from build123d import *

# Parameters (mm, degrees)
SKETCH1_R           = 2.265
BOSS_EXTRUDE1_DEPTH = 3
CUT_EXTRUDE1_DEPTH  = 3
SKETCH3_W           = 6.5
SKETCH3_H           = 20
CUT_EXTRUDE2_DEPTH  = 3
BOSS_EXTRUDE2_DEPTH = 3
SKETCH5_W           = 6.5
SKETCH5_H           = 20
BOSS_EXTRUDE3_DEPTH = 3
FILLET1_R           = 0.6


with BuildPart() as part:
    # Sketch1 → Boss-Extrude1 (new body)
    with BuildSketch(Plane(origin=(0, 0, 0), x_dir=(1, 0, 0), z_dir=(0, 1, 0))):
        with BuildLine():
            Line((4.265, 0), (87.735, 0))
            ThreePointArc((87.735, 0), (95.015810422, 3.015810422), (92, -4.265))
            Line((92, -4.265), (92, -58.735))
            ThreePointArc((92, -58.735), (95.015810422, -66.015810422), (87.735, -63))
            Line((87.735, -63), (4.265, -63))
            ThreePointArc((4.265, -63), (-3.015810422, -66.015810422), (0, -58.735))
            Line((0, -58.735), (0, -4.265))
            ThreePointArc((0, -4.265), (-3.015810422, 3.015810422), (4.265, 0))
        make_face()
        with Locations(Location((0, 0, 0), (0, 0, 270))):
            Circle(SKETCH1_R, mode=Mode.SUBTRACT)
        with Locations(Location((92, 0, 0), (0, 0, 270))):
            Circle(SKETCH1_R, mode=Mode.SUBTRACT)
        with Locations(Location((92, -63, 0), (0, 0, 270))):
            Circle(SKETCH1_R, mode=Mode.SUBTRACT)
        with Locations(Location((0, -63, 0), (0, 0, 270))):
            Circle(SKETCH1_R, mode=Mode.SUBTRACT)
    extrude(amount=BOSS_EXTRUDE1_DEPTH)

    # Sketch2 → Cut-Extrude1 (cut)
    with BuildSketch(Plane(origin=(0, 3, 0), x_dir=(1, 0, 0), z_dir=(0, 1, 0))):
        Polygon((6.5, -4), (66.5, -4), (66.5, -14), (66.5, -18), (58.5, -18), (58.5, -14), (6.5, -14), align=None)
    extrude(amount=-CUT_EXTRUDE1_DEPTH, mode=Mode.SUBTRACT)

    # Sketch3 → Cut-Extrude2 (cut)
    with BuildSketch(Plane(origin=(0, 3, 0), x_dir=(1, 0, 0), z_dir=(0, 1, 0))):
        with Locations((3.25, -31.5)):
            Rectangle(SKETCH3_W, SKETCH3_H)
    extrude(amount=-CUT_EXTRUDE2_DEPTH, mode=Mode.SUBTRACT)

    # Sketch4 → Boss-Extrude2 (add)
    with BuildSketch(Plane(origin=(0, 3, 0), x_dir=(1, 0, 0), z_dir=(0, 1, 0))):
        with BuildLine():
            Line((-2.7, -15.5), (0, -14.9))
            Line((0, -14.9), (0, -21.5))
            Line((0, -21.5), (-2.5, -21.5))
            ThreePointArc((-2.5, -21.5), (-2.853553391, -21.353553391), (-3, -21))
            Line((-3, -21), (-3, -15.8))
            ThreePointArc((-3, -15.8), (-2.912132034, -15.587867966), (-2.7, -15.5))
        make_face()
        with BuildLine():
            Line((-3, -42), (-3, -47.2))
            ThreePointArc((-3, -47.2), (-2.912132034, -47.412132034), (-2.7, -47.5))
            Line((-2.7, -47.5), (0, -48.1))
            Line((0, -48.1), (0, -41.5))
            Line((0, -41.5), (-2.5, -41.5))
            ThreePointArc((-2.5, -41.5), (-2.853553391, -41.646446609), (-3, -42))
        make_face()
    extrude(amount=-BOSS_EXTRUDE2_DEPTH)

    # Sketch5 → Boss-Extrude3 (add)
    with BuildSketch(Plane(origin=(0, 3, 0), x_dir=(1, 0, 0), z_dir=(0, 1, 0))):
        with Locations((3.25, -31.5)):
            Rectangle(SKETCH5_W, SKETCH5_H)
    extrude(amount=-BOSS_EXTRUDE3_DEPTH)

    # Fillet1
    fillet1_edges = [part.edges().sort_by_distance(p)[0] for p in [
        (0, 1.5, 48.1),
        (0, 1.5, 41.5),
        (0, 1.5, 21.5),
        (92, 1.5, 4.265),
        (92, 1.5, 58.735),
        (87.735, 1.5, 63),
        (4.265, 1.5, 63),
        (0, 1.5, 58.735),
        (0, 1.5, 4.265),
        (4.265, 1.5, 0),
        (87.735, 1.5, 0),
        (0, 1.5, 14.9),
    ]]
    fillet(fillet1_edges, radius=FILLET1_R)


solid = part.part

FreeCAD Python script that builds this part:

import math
import FreeCAD as App
import Part
import Sketcher

V = App.Vector
Q = App.Units.Quantity


def edges_at(feature, points):
    """Names of the edges that pass closest to the given points."""
    edges = feature.Shape.Edges
    near = lambda p: min(range(len(edges)), key=lambda i: edges[i].distToShape(Part.Vertex(*p))[0])
    return sorted({f"Edge{near(p) + 1}" for p in points})

doc = App.newDocument("Part")
body = doc.addObject("PartDesign::Body", "Body")

sketch1 = body.newObject("Sketcher::SketchObject", "Sketch")
sketch1.AttachmentSupport = (doc.getObject("XZ_Plane"), [""])
sketch1.MapMode = "FlatFace"
sketch1.addGeometry([
    Part.LineSegment(V(87.7, 0, 0), V(4.3, 0, 0)),
    Part.ArcOfCircle(Part.Circle(V(0, 0, 0), V(0, 0, 1), 4.3), math.radians(90), math.radians(360)),
    Part.LineSegment(V(0, 4.3, 0), V(0, 58.7, 0)),
    Part.ArcOfCircle(Part.Circle(V(0, 63, 0), V(0, 0, 1), 4.3), math.radians(0), math.radians(270)),
    Part.LineSegment(V(4.3, 63, 0), V(87.7, 63, 0)),
    Part.ArcOfCircle(Part.Circle(V(92, 63, 0), V(0, 0, 1), 4.3), math.radians(-90), math.radians(180)),
    Part.LineSegment(V(92, 58.7, 0), V(92, 4.3, 0)),
    Part.ArcOfCircle(Part.Circle(V(92, 0, 0), V(0, 0, 1), 4.3), math.radians(180), math.radians(450)),
    Part.Circle(V(92, 63, 0), V(0, 0, 1), 2.3),
    Part.Circle(V(0, 63, 0), V(0, 0, 1), 2.3),
    Part.Circle(V(92, 0, 0), V(0, 0, 1), 2.3),
    Part.Circle(V(0, 0, 0), V(0, 0, 1), 2.3),
], False)
sketch1.addConstraint([
    Sketcher.Constraint("Coincident", 0, 2, 1, 2),
    Sketcher.Constraint("Coincident", 1, 1, 2, 1),
    Sketcher.Constraint("Coincident", 2, 2, 3, 2),
    Sketcher.Constraint("Coincident", 3, 1, 4, 1),
    Sketcher.Constraint("Coincident", 4, 2, 5, 2),
    Sketcher.Constraint("Coincident", 5, 1, 6, 1),
    Sketcher.Constraint("Coincident", 6, 2, 7, 2),
    Sketcher.Constraint("Coincident", 7, 1, 0, 1),
    Sketcher.Constraint("Horizontal", 0),
    Sketcher.Constraint("Vertical", 2),
    Sketcher.Constraint("Horizontal", 4),
    Sketcher.Constraint("Vertical", 6),
    Sketcher.Constraint("Coincident", 1, 3, -1, 1),
    Sketcher.Constraint("Coincident", 11, 3, -1, 1),
    Sketcher.Constraint("Coincident", 8, 3, 5, 3),
    Sketcher.Constraint("Coincident", 9, 3, 3, 3),
    Sketcher.Constraint("Coincident", 10, 3, 7, 3),
    Sketcher.Constraint("Equal", 1, 3),
    Sketcher.Constraint("Equal", 3, 5),
    Sketcher.Constraint("Equal", 5, 7),
    Sketcher.Constraint("Equal", 8, 9),
    Sketcher.Constraint("Equal", 9, 10),
    Sketcher.Constraint("Equal", 10, 11),
    Sketcher.Constraint("PointOnObject", 3, 3, -2),
    Sketcher.Constraint("PointOnObject", 7, 3, -1),
    Sketcher.Constraint("PointOnObject", 0, 2, -1),
    Sketcher.Constraint("PointOnObject", 1, 1, -2),
    Sketcher.Constraint("Horizontal", 3, 3, 5, 3),
    Sketcher.Constraint("Horizontal", 9, 3, 3, 1),
    Sketcher.Constraint("Vertical", 5, 3, 7, 3),
    Sketcher.Constraint("Vertical", 10, 3, 5, 1),
    Sketcher.Constraint("Diameter", 8, Q("4.53 mm")),
    Sketcher.Constraint("DistanceY", -1, 1, 3, 3, Q("63 mm")),
    Sketcher.Constraint("DistanceX", -1, 1, 5, 3, Q("92 mm")),
    Sketcher.Constraint("Radius", 1, Q("4.265 mm")),
])
pad1 = body.newObject("PartDesign::Pad", "Pad")
pad1.Profile = sketch1
pad1.Length = 3
pad1.Reversed = True

sketch2 = body.newObject("Sketcher::SketchObject", "Sketch001")
sketch2.AttachmentSupport = (doc.getObject("XZ_Plane"), [""])
sketch2.MapMode = "FlatFace"
sketch2.AttachmentOffset = App.Placement(V(0, 0, -3), App.Rotation())
sketch2.addGeometry([
    Part.LineSegment(V(66.5, 4, 0), V(6.5, 4, 0)),
    Part.LineSegment(V(6.5, 4, 0), V(6.5, 14, 0)),
    Part.LineSegment(V(6.5, 14, 0), V(58.5, 14, 0)),
    Part.LineSegment(V(58.5, 14, 0), V(58.5, 18, 0)),
    Part.LineSegment(V(58.5, 18, 0), V(66.5, 18, 0)),
    Part.LineSegment(V(66.5, 18, 0), V(66.5, 4, 0)),
], False)
sketch2.addConstraint([
    Sketcher.Constraint("Coincident", 0, 2, 1, 1),
    Sketcher.Constraint("Coincident", 1, 2, 2, 1),
    Sketcher.Constraint("Coincident", 2, 2, 3, 1),
    Sketcher.Constraint("Coincident", 3, 2, 4, 1),
    Sketcher.Constraint("Coincident", 4, 2, 5, 1),
    Sketcher.Constraint("Coincident", 5, 2, 0, 1),
    Sketcher.Constraint("Horizontal", 0),
    Sketcher.Constraint("Vertical", 1),
    Sketcher.Constraint("Horizontal", 2),
    Sketcher.Constraint("Vertical", 3),
    Sketcher.Constraint("Horizontal", 4),
    Sketcher.Constraint("Vertical", 5),
    Sketcher.Constraint("DistanceX", 0, 2, 0, 1, Q("60 mm")),
    Sketcher.Constraint("DistanceX", 2, 1, 2, 2, Q("52 mm")),
    Sketcher.Constraint("DistanceY", 1, 1, 1, 2, Q("10 mm")),
    Sketcher.Constraint("DistanceY", 3, 1, 3, 2, Q("4 mm")),
    Sketcher.Constraint("DistanceY", -1, 1, 0, 2, Q("4 mm")),
    Sketcher.Constraint("DistanceX", -1, 1, 0, 2, Q("6.5 mm")),
])
pocket1 = body.newObject("PartDesign::Pocket", "Pocket")
pocket1.Profile = sketch2
pocket1.Length = 3
pocket1.Reversed = True

sketch3 = body.newObject("Sketcher::SketchObject", "Sketch002")
sketch3.AttachmentSupport = (doc.getObject("XZ_Plane"), [""])
sketch3.MapMode = "FlatFace"
sketch3.AttachmentOffset = App.Placement(V(0, 0, -3), App.Rotation())
sketch3.addGeometry([
    Part.LineSegment(V(0, 22, 0), V(0, 42, 0)),
    Part.LineSegment(V(0, 42, 0), V(6, 42, 0)),
    Part.LineSegment(V(6, 42, 0), V(6, 22, 0)),
    Part.LineSegment(V(6, 22, 0), V(0, 22, 0)),
], False)
sketch3.addConstraint([
    Sketcher.Constraint("Coincident", 0, 2, 1, 1),
    Sketcher.Constraint("Coincident", 1, 2, 2, 1),
    Sketcher.Constraint("Coincident", 2, 2, 3, 1),
    Sketcher.Constraint("Coincident", 3, 2, 0, 1),
    Sketcher.Constraint("Vertical", 0),
    Sketcher.Constraint("Horizontal", 1),
    Sketcher.Constraint("Vertical", 2),
    Sketcher.Constraint("Horizontal", 3),
    Sketcher.Constraint("PointOnObject", 0, 2, -2),
    Sketcher.Constraint("DistanceY", 0, 1, 0, 2, Q("20 mm")),
    Sketcher.Constraint("DistanceX", 1, 1, 1, 2, Q("6.5 mm")),
    Sketcher.Constraint("DistanceY", -1, 1, 0, 2, Q("41.5 mm")),
])
pocket2 = body.newObject("PartDesign::Pocket", "Pocket001")
pocket2.Profile = sketch3
pocket2.Length = 3
pocket2.Reversed = True

sketch4 = body.newObject("Sketcher::SketchObject", "Sketch003")
sketch4.AttachmentSupport = (doc.getObject("XZ_Plane"), [""])
sketch4.MapMode = "FlatFace"
sketch4.AttachmentOffset = App.Placement(V(0, 0, -3), App.Rotation())
sketch4.addGeometry([
    Part.LineSegment(V(0, 14.9, 0), V(-2.7, 15.5, 0)),
    Part.ArcOfCircle(Part.Circle(V(-2.7, 15.8, 0), V(0, 0, 1), 0.3), math.radians(-180), math.radians(-90)),
    Part.LineSegment(V(-3, 15.8, 0), V(-3, 21, 0)),
    Part.ArcOfCircle(Part.Circle(V(-2.5, 21, 0), V(0, 0, 1), 0.5), math.radians(90), math.radians(180)),
    Part.LineSegment(V(-2.5, 21.5, 0), V(0, 21.5, 0)),
    Part.LineSegment(V(0, 21.5, 0), V(0, 14.9, 0)),
    Part.LineSegment(V(-3, 42, 0), V(-3, 47.2, 0)),
    Part.ArcOfCircle(Part.Circle(V(-2.7, 47.2, 0), V(0, 0, 1), 0.3), math.radians(90), math.radians(180)),
    Part.LineSegment(V(-2.7, 47.5, 0), V(0, 48.1, 0)),
    Part.LineSegment(V(0, 48.1, 0), V(0, 41.5, 0)),
    Part.LineSegment(V(0, 41.5, 0), V(-2.5, 41.5, 0)),
    Part.ArcOfCircle(Part.Circle(V(-2.5, 42, 0), V(0, 0, 1), 0.5), math.radians(180), math.radians(270)),
], False)
sketch4.addConstraint([
    Sketcher.Constraint("Coincident", 0, 2, 1, 2),
    Sketcher.Constraint("Tangent", 1, 1, 2, 1),
    Sketcher.Constraint("Tangent", 2, 2, 3, 2),
    Sketcher.Constraint("Tangent", 3, 1, 4, 1),
    Sketcher.Constraint("Coincident", 4, 2, 5, 1),
    Sketcher.Constraint("Coincident", 5, 2, 0, 1),
    Sketcher.Constraint("Tangent", 6, 2, 7, 2),
    Sketcher.Constraint("Coincident", 7, 1, 8, 1),
    Sketcher.Constraint("Coincident", 8, 2, 9, 1),
    Sketcher.Constraint("Coincident", 9, 2, 10, 1),
    Sketcher.Constraint("Tangent", 10, 2, 11, 2),
    Sketcher.Constraint("Tangent", 11, 1, 6, 1),
    Sketcher.Constraint("Vertical", 2),
    Sketcher.Constraint("Horizontal", 4),
    Sketcher.Constraint("Vertical", 5),
    Sketcher.Constraint("Vertical", 6),
    Sketcher.Constraint("Vertical", 9),
    Sketcher.Constraint("Horizontal", 10),
    Sketcher.Constraint("Equal", 1, 7),
    Sketcher.Constraint("Equal", 3, 11),
    Sketcher.Constraint("PointOnObject", 4, 2, -2),
    Sketcher.Constraint("PointOnObject", 8, 2, -2),
    Sketcher.Constraint("Vertical", 1, 3, 7, 3),
    Sketcher.Constraint("Vertical", 7, 3, 0, 2),
    Sketcher.Constraint("Vertical", 0, 2, 7, 1),
    Sketcher.Constraint("Equal", 2, 6),
    Sketcher.Constraint("Equal", 5, 9),
    Sketcher.Constraint("Radius", 1, Q("0.3 mm")),
    Sketcher.Constraint("Radius", 3, Q("0.5 mm")),
    Sketcher.Constraint("DistanceX", 4, 1, 4, 2, Q("2.5 mm")),
    Sketcher.Constraint("DistanceY", 2, 1, 2, 2, Q("5.2 mm")),
    Sketcher.Constraint("DistanceY", 5, 2, 5, 1, Q("6.6 mm")),
    Sketcher.Constraint("DistanceY", -1, 1, 3, 3, Q("21 mm")),
    Sketcher.Constraint("DistanceY", -1, 1, 11, 3, Q("42 mm")),
])
pad2 = body.newObject("PartDesign::Pad", "Pad001")
pad2.Profile = sketch4
pad2.Length = 3

sketch5 = body.newObject("Sketcher::SketchObject", "Sketch004")
sketch5.AttachmentSupport = (doc.getObject("XZ_Plane"), [""])
sketch5.MapMode = "FlatFace"
sketch5.AttachmentOffset = App.Placement(V(0, 0, -3), App.Rotation())
sketch5.addGeometry([
    Part.LineSegment(V(0, 22, 0), V(0, 42, 0)),
    Part.LineSegment(V(0, 42, 0), V(6, 42, 0)),
    Part.LineSegment(V(6, 42, 0), V(6, 22, 0)),
    Part.LineSegment(V(6, 22, 0), V(0, 22, 0)),
], False)
sketch5.addConstraint([
    Sketcher.Constraint("Coincident", 0, 2, 1, 1),
    Sketcher.Constraint("Coincident", 1, 2, 2, 1),
    Sketcher.Constraint("Coincident", 2, 2, 3, 1),
    Sketcher.Constraint("Coincident", 3, 2, 0, 1),
    Sketcher.Constraint("Vertical", 0),
    Sketcher.Constraint("Horizontal", 1),
    Sketcher.Constraint("Vertical", 2),
    Sketcher.Constraint("Horizontal", 3),
    Sketcher.Constraint("PointOnObject", 0, 2, -2),
    Sketcher.Constraint("DistanceY", 0, 1, 0, 2, Q("20 mm")),
    Sketcher.Constraint("DistanceX", 1, 1, 1, 2, Q("6.5 mm")),
    Sketcher.Constraint("DistanceY", -1, 1, 0, 2, Q("41.5 mm")),
])
pad3 = body.newObject("PartDesign::Pad", "Pad002")
pad3.Profile = sketch5
pad3.Length = 3
doc.recompute()

fillet = body.newObject("PartDesign::Fillet", "Fillet")
fillet.Base = (pad3, edges_at(pad3, [
    (0, 1.5, 48.1),
    (0, 1.5, 41.5),
    (0, 1.5, 21.5),
    (92, 1.5, 4.265),
    (92, 1.5, 58.735),
    (87.735, 1.5, 63),
    (4.265, 1.5, 63),
    (0, 1.5, 58.735),
    (0, 1.5, 4.265),
    (4.265, 1.5, 0),
    (87.735, 1.5, 0),
    (0, 1.5, 14.9),
]))
fillet.Radius = 0.6

doc.recompute()
